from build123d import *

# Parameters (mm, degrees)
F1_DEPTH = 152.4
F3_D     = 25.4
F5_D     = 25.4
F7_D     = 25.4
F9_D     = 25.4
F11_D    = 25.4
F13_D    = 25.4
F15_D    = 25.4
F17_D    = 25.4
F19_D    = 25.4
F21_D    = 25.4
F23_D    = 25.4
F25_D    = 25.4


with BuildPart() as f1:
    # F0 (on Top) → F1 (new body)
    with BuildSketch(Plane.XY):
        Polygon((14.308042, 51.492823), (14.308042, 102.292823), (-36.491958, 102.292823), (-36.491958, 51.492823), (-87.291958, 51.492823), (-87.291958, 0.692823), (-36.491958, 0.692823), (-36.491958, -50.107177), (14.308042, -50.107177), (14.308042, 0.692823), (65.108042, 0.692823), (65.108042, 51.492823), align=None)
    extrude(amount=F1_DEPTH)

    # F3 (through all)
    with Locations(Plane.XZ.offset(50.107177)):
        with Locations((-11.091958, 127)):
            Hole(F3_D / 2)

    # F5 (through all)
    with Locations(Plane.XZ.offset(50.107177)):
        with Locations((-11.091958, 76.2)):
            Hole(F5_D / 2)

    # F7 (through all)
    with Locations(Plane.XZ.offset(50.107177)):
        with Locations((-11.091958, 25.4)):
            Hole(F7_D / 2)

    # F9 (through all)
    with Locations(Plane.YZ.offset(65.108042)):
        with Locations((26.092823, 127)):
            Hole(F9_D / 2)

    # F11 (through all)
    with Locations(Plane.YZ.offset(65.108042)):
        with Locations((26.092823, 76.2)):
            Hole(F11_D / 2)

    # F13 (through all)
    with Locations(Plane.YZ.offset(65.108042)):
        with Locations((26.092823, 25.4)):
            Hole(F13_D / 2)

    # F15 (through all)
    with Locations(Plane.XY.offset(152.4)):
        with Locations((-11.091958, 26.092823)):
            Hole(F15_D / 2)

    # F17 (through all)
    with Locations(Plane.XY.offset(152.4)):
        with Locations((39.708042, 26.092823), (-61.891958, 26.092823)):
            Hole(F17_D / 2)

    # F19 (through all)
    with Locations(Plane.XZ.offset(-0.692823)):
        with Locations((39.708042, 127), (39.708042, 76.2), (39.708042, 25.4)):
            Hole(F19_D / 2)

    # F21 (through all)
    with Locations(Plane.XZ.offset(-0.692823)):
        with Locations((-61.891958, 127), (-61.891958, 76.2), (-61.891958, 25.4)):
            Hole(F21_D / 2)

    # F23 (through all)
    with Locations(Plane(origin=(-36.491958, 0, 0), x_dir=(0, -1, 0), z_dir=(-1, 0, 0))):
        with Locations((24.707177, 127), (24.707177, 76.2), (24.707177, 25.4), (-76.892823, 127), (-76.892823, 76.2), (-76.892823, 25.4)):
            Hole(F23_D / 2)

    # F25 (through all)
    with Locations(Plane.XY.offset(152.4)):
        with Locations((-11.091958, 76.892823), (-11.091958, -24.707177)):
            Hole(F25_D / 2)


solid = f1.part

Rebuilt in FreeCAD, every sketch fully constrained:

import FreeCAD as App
import Part
import Sketcher

V = App.Vector
Q = App.Units.Quantity


def add_polygon(sketch, points):
    """Adds a closed chain of lines whose ends are joined by coincident constraints."""
    first, n = sketch.GeometryCount, len(points)
    for a, b in zip(points, points[1:] + points[:1]):
        sketch.addGeometry(Part.LineSegment(App.Vector(*a, 0), App.Vector(*b, 0)), False)
    for i in range(n):
        sketch.addConstraint(Sketcher.Constraint("Coincident", first + i, 2, first + (i + 1) % n, 1))

doc = App.newDocument("Part")
body = doc.addObject("PartDesign::Body", "Body")

sketch1 = doc.addObject("Sketcher::SketchObject", "Sketch")
body.addObject(sketch1)
sketch1.AttachmentSupport = (doc.XY_Plane, [""])
sketch1.MapMode = "FlatFace"
add_polygon(sketch1, [(14, 51), (14, 102), (-36, 102), (-36, 51), (-87, 51), (-87, 1), (-36, 1), (-36, -50), (14, -50), (14, 1), (65, 1), (65, 51)])
sketch1.addConstraint([
    Sketcher.Constraint("Vertical", 0),
    Sketcher.Constraint("Horizontal", 1),
    Sketcher.Constraint("Vertical", 2),
    Sketcher.Constraint("Horizontal", 3),
    Sketcher.Constraint("Vertical", 4),
    Sketcher.Constraint("Horizontal", 5),
    Sketcher.Constraint("Vertical", 6),
    Sketcher.Constraint("Horizontal", 7),
    Sketcher.Constraint("Vertical", 8),
    Sketcher.Constraint("Horizontal", 9),
    Sketcher.Constraint("Vertical", 10),
    Sketcher.Constraint("Horizontal", 11),
    Sketcher.Constraint("Horizontal", 5, 2, 8, 2),
    Sketcher.Constraint("Horizontal", 3, 2, 10, 2),
    Sketcher.Constraint("Vertical", 2, 2, 5, 2),
    Sketcher.Constraint("Vertical", 0, 2, 7, 2),
    Sketcher.Constraint("Equal", 1, 3),
    Sketcher.Constraint("Equal", 7, 9),
    Sketcher.Constraint("Equal", 11, 0),
    Sketcher.Constraint("Equal", 2, 4),
    Sketcher.Constraint("Equal", 4, 6),
    Sketcher.Constraint("DistanceX", 1, 2, 1, 1, Q("2 in")),
    Sketcher.Constraint("DistanceX", -1, 1, 9, 2, Q("65.108042 mm")),
    Sketcher.Constraint("DistanceY", -1, 1, 0, 2, Q("102.292823 mm")),
])
pad1 = doc.addObject("PartDesign::Pad", "Pad")
body.addObject(pad1)
pad1.Profile = sketch1
pad1.Length = Q("6 in")

sketch2 = doc.addObject("Sketcher::SketchObject", "Sketch001")
body.addObject(sketch2)
sketch2.AttachmentSupport = (doc.XZ_Plane, [""])
sketch2.MapMode = "FlatFace"
sketch2.AttachmentOffset = App.Placement(V(0, 0, 50.107177), App.Rotation())
sketch2.addGeometry(Part.Circle(V(-11, 127, 0), V(0, 0, 1), 13), False)
sketch2.addConstraint([
    Sketcher.Constraint("Diameter", 0, Q("1 in")),
    Sketcher.Constraint("DistanceY", -1, 1, 0, 3, Q("5 in")),
    Sketcher.Constraint("DistanceX", 0, 3, -1, 1, Q("11.091958 mm")),
])
doc.recompute()
hole = doc.addObject("PartDesign::Hole", "Hole")
body.addObject(hole)
hole.Profile = sketch2
hole.ThreadType = "None"
hole.Diameter = Q("1 in")
hole.DepthType = "ThroughAll"

sketch3 = doc.addObject("Sketcher::SketchObject", "Sketch002")
body.addObject(sketch3)
sketch3.AttachmentSupport = (doc.XZ_Plane, [""])
sketch3.MapMode = "FlatFace"
sketch3.AttachmentOffset = App.Placement(V(0, 0, 50.107177), App.Rotation())
sketch3.addGeometry(Part.Circle(V(-11, 76, 0), V(0, 0, 1), 13), False)
sketch3.addConstraint([
    Sketcher.Constraint("Diameter", 0, Q("1 in")),
    Sketcher.Constraint("DistanceY", -1, 1, 0, 3, Q("3 in")),
    Sketcher.Constraint("DistanceX", 0, 3, -1, 1, Q("11.091958 mm")),
])
doc.recompute()
hole2 = doc.addObject("PartDesign::Hole", "Hole001")
body.addObject(hole2)
hole2.Profile = sketch3
hole2.ThreadType = "None"
hole2.Diameter = Q("1 in")
hole2.DepthType = "ThroughAll"

sketch4 = doc.addObject("Sketcher::SketchObject", "Sketch003")
body.addObject(sketch4)
sketch4.AttachmentSupport = (doc.XZ_Plane, [""])
sketch4.MapMode = "FlatFace"
sketch4.AttachmentOffset = App.Placement(V(0, 0, 50.107177), App.Rotation())
sketch4.addGeometry(Part.Circle(V(-11, 25, 0), V(0, 0, 1), 13), False)
sketch4.addConstraint([
    Sketcher.Constraint("Diameter", 0, Q("1 in")),
    Sketcher.Constraint("DistanceY", -1, 1, 0, 3, Q("1 in")),
    Sketcher.Constraint("DistanceX", 0, 3, -1, 1, Q("11.091958 mm")),
])
doc.recompute()
hole3 = doc.addObject("PartDesign::Hole", "Hole002")
body.addObject(hole3)
hole3.Profile = sketch4
hole3.ThreadType = "None"
hole3.Diameter = Q("1 in")
hole3.DepthType = "ThroughAll"

sketch5 = doc.addObject("Sketcher::SketchObject", "Sketch004")
body.addObject(sketch5)
sketch5.AttachmentSupport = (doc.YZ_Plane, [""])
sketch5.MapMode = "FlatFace"
sketch5.AttachmentOffset = App.Placement(V(0, 0, 65.108042), App.Rotation())
sketch5.addGeometry(Part.Circle(V(26, 127, 0), V(0, 0, 1), 13), False)
sketch5.addConstraint([
    Sketcher.Constraint("Diameter", 0, Q("1 in")),
    Sketcher.Constraint("DistanceY", -1, 1, 0, 3, Q("5 in")),
    Sketcher.Constraint("DistanceX", -1, 1, 0, 3, Q("26.092823 mm")),
])
doc.recompute()
hole4 = doc.addObject("PartDesign::Hole", "Hole003")
body.addObject(hole4)
hole4.Profile = sketch5
hole4.ThreadType = "None"
hole4.Diameter = Q("1 in")
hole4.DepthType = "ThroughAll"

sketch6 = doc.addObject("Sketcher::SketchObject", "Sketch005")
body.addObject(sketch6)
sketch6.AttachmentSupport = (doc.YZ_Plane, [""])
sketch6.MapMode = "FlatFace"
sketch6.AttachmentOffset = App.Placement(V(0, 0, 65.108042), App.Rotation())
sketch6.addGeometry(Part.Circle(V(26, 76, 0), V(0, 0, 1), 13), False)
sketch6.addConstraint([
    Sketcher.Constraint("Diameter", 0, Q("1 in")),
    Sketcher.Constraint("DistanceY", -1, 1, 0, 3, Q("3 in")),
    Sketcher.Constraint("DistanceX", -1, 1, 0, 3, Q("26.092823 mm")),
])
doc.recompute()
hole5 = doc.addObject("PartDesign::Hole", "Hole004")
body.addObject(hole5)
hole5.Profile = sketch6
hole5.ThreadType = "None"
hole5.Diameter = Q("1 in")
hole5.DepthType = "ThroughAll"

sketch7 = doc.addObject("Sketcher::SketchObject", "Sketch006")
body.addObject(sketch7)
sketch7.AttachmentSupport = (doc.YZ_Plane, [""])
sketch7.MapMode = "FlatFace"
sketch7.AttachmentOffset = App.Placement(V(0, 0, 65.108042), App.Rotation())
sketch7.addGeometry(Part.Circle(V(26, 25, 0), V(0, 0, 1), 13), False)
sketch7.addConstraint([
    Sketcher.Constraint("Diameter", 0, Q("1 in")),
    Sketcher.Constraint("DistanceY", -1, 1, 0, 3, Q("1 in")),
    Sketcher.Constraint("DistanceX", -1, 1, 0, 3, Q("26.092823 mm")),
])
doc.recompute()
hole6 = doc.addObject("PartDesign::Hole", "Hole005")
body.addObject(hole6)
hole6.Profile = sketch7
hole6.ThreadType = "None"
hole6.Diameter = Q("1 in")
hole6.DepthType = "ThroughAll"

sketch8 = doc.addObject("Sketcher::SketchObject", "Sketch007")
body.addObject(sketch8)
sketch8.AttachmentSupport = (doc.XY_Plane, [""])
sketch8.MapMode = "FlatFace"
sketch8.AttachmentOffset = App.Placement(V(0, 0, 6 * 25.4), App.Rotation())
sketch8.addGeometry(Part.Circle(V(-11, 26, 0), V(0, 0, 1), 13), False)
sketch8.addConstraint([
    Sketcher.Constraint("Diameter", 0, Q("1 in")),
    Sketcher.Constraint("DistanceX", 0, 3, -1, 1, Q("11.091958 mm")),
    Sketcher.Constraint("DistanceY", -1, 1, 0, 3, Q("26.092823 mm")),
])
doc.recompute()
hole7 = doc.addObject("PartDesign::Hole", "Hole006")
body.addObject(hole7)
hole7.Profile = sketch8
hole7.ThreadType = "None"
hole7.Diameter = Q("1 in")
hole7.DepthType = "ThroughAll"

sketch9 = doc.addObject("Sketcher::SketchObject", "Sketch008")
body.addObject(sketch9)
sketch9.AttachmentSupport = (doc.XY_Plane, [""])
sketch9.MapMode = "FlatFace"
sketch9.AttachmentOffset = App.Placement(V(0, 0, 6 * 25.4), App.Rotation())
sketch9.addGeometry([
    Part.Circle(V(40, 26, 0), V(0, 0, 1), 13),
    Part.Circle(V(-62, 26, 0), V(0, 0, 1), 13),
], False)
sketch9.addConstraint([
    Sketcher.Constraint("Equal", 0, 1),
    Sketcher.Constraint("Horizontal", 0, 3, 1, 3),
    Sketcher.Constraint("Diameter", 0, Q("1 in")),
    Sketcher.Constraint("DistanceX", 1, 3, 0, 3, Q("4 in")),
    Sketcher.Constraint("DistanceX", 1, 3, -1, 1, Q("61.891958 mm")),
    Sketcher.Constraint("DistanceY", -1, 1, 0, 3, Q("26.092823 mm")),
])
doc.recompute()
hole8 = doc.addObject("PartDesign::Hole", "Hole007")
body.addObject(hole8)
hole8.Profile = sketch9
hole8.ThreadType = "None"
hole8.Diameter = Q("1 in")
hole8.DepthType = "ThroughAll"

sketch10 = doc.addObject("Sketcher::SketchObject", "Sketch009")
body.addObject(sketch10)
sketch10.AttachmentSupport = (doc.XZ_Plane, [""])
sketch10.MapMode = "FlatFace"
sketch10.AttachmentOffset = App.Placement(V(0, 0, -0.692823), App.Rotation())
sketch10.addGeometry([
    Part.Circle(V(40, 127, 0), V(0, 0, 1), 13),
    Part.Circle(V(40, 76, 0), V(0, 0, 1), 13),
    Part.Circle(V(40, 25, 0), V(0, 0, 1), 13),
], False)
sketch10.addConstraint([
    Sketcher.Constraint("Equal", 0, 1),
    Sketcher.Constraint("Equal", 1, 2),
    Sketcher.Constraint("Vertical", 0, 3, 1, 3),
    Sketcher.Constraint("Vertical", 1, 3, 2, 3),
    Sketcher.Constraint("Diameter", 0, Q("1 in")),
    Sketcher.Constraint("DistanceY", -1, 1, 0, 3, Q("5 in")),
    Sketcher.Constraint("DistanceY", -1, 1, 1, 3, Q("3 in")),
    Sketcher.Constraint("DistanceY", -1, 1, 2, 3, Q("1 in")),
    Sketcher.Constraint("DistanceX", -1, 1, 0, 3, Q("39.708042 mm")),
])
doc.recompute()
hole9 = doc.addObject("PartDesign::Hole", "Hole008")
body.addObject(hole9)
hole9.Profile = sketch10
hole9.ThreadType = "None"
hole9.Diameter = Q("1 in")
hole9.DepthType = "ThroughAll"

sketch11 = doc.addObject("Sketcher::SketchObject", "Sketch010")
body.addObject(sketch11)
sketch11.AttachmentSupport = (doc.XZ_Plane, [""])
sketch11.MapMode = "FlatFace"
sketch11.AttachmentOffset = App.Placement(V(0, 0, -0.692823), App.Rotation())
sketch11.addGeometry([
    Part.Circle(V(-62, 127, 0), V(0, 0, 1), 13),
    Part.Circle(V(-62, 76, 0), V(0, 0, 1), 13),
    Part.Circle(V(-62, 25, 0), V(0, 0, 1), 13),
], False)
sketch11.addConstraint([
    Sketcher.Constraint("Equal", 0, 1),
    Sketcher.Constraint("Equal", 1, 2),
    Sketcher.Constraint("Vertical", 0, 3, 1, 3),
    Sketcher.Constraint("Vertical", 1, 3, 2, 3),
    Sketcher.Constraint("Diameter", 0, Q("1 in")),
    Sketcher.Constraint("DistanceY", -1, 1, 0, 3, Q("5 in")),
    Sketcher.Constraint("DistanceY", -1, 1, 1, 3, Q("3 in")),
    Sketcher.Constraint("DistanceY", -1, 1, 2, 3, Q("1 in")),
    Sketcher.Constraint("DistanceX", 0, 3, -1, 1, Q("61.891958 mm")),
])
doc.recompute()
hole10 = doc.addObject("PartDesign::Hole", "Hole009")
body.addObject(hole10)
hole10.Profile = sketch11
hole10.ThreadType = "None"
hole10.Diameter = Q("1 in")
hole10.DepthType = "ThroughAll"

sketch12 = doc.addObject("Sketcher::SketchObject", "Sketch011")
body.addObject(sketch12)
sketch12.AttachmentSupport = (doc.YZ_Plane, [""])
sketch12.MapMode = "FlatFace"
sketch12.AttachmentOffset = App.Placement(V(0, 0, -36.491958), App.Rotation())
sketch12.addGeometry([
    Part.Circle(V(-25, 127, 0), V(0, 0, 1), 13),
    Part.Circle(V(-25, 76, 0), V(0, 0, 1), 13),
    Part.Circle(V(-25, 25, 0), V(0, 0, 1), 13),
    Part.Circle(V(77, 127, 0), V(0, 0, 1), 13),
    Part.Circle(V(77, 76, 0), V(0, 0, 1), 13),
    Part.Circle(V(77, 25, 0), V(0, 0, 1), 13),
], False)
sketch12.addConstraint([
    Sketcher.Constraint("Equal", 0, 1),
    Sketcher.Constraint("Equal", 1, 2),
    Sketcher.Constraint("Equal", 2, 3),
    Sketcher.Constraint("Equal", 3, 4),
    Sketcher.Constraint("Equal", 4, 5),
    Sketcher.Constraint("Horizontal", 0, 3, 3, 3),
    Sketcher.Constraint("Horizontal", 1, 3, 4, 3),
    Sketcher.Constraint("Horizontal", 2, 3, 5, 3),
    Sketcher.Constraint("Vertical", 0, 3, 1, 3),
    Sketcher.Constraint("Vertical", 1, 3, 2, 3),
    Sketcher.Constraint("Vertical", 3, 3, 4, 3),
    Sketcher.Constraint("Vertical", 4, 3, 5, 3),
    Sketcher.Constraint("Diameter", 0, Q("1 in")),
    Sketcher.Constraint("DistanceY", -1, 1, 0, 3, Q("5 in")),
    Sketcher.Constraint("DistanceY", -1, 1, 1, 3, Q("3 in")),
    Sketcher.Constraint("DistanceY", -1, 1, 2, 3, Q("1 in")),
    Sketcher.Constraint("DistanceX", 0, 3, 3, 3, Q("4 in")),
    Sketcher.Constraint("DistanceX", 0, 3, -1, 1, Q("24.707177 mm")),
])
doc.recompute()
hole11 = doc.addObject("PartDesign::Hole", "Hole010")
body.addObject(hole11)
hole11.Profile = sketch12
hole11.ThreadType = "None"
hole11.Diameter = Q("1 in")
hole11.DepthType = "ThroughAll"
hole11.Reversed = True

sketch13 = doc.addObject("Sketcher::SketchObject", "Sketch012")
body.addObject(sketch13)
sketch13.AttachmentSupport = (doc.XY_Plane, [""])
sketch13.MapMode = "FlatFace"
sketch13.AttachmentOffset = App.Placement(V(0, 0, 6 * 25.4), App.Rotation())
sketch13.addGeometry([
    Part.Circle(V(-11, 77, 0), V(0, 0, 1), 13),
    Part.Circle(V(-11, -25, 0), V(0, 0, 1), 13),
], False)
sketch13.addConstraint([
    Sketcher.Constraint("Equal", 0, 1),
    Sketcher.Constraint("Vertical", 0, 3, 1, 3),
    Sketcher.Constraint("Diameter", 0, Q("1 in")),
    Sketcher.Constraint("DistanceY", 1, 3, 0, 3, Q("4 in")),
    Sketcher.Constraint("DistanceX", 0, 3, -1, 1, Q("11.091958 mm")),
    Sketcher.Constraint("DistanceY", -1, 1, 0, 3, Q("76.892823 mm")),
])
doc.recompute()
hole12 = doc.addObject("PartDesign::Hole", "Hole011")
body.addObject(hole12)
hole12.Profile = sketch13
hole12.ThreadType = "None"
hole12.Diameter = Q("1 in")
hole12.DepthType = "ThroughAll"

doc.recompute()
